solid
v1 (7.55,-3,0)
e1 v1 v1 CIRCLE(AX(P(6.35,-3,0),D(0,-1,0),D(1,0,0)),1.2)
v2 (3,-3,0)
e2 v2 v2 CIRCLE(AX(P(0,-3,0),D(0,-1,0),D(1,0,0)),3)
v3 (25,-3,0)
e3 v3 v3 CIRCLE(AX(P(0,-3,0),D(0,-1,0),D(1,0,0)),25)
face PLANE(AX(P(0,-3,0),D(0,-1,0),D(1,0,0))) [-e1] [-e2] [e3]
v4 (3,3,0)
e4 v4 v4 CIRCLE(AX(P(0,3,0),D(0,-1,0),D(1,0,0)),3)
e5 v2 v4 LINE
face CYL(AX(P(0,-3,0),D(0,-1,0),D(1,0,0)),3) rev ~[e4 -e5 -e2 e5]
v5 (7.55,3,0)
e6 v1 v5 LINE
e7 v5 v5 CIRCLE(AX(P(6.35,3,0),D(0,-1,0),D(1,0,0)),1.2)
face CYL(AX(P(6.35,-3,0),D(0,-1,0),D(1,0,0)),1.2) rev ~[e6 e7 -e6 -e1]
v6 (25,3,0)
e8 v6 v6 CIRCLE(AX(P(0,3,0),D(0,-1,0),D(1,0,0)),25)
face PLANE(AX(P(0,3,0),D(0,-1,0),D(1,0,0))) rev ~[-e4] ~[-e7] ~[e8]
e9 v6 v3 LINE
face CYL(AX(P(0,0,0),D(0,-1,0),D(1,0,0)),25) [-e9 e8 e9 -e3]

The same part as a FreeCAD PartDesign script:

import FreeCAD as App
import Part
import Sketcher
from FreeCAD import Vector

doc = App.newDocument("Part")
params = doc.addObject("Spreadsheet::Sheet", "Params")
for row, (alias, value) in enumerate([
    ("sketch1_diameter", "50 mm"),
    ("pad1_length", "3 mm"),
    ("pad1_length2", "3 mm"),
    ("sketch2_diameter", "6 mm"),
    ("sketch2_diameter2", "2.4 mm"),
], start=1):
    params.set(f"A{row}", alias)
    params.set(f"B{row}", "=" + value)
    params.setAlias(f"B{row}", alias)

body = doc.addObject("PartDesign::Body", "Body")

sketch1 = body.newObject("Sketcher::SketchObject", "Sketch")
sketch1.AttachmentSupport = (doc.getObject("XZ_Plane"), [""])
sketch1.MapMode = "FlatFace"
sketch1.addGeometry(Part.Circle(Vector(0, 0, 0), Vector(0, 0, 1), 25), False)
sketch1.addConstraint([
    Sketcher.Constraint("Coincident", 0, 3, -1, 1),
    Sketcher.Constraint("Diameter", 0, 50.0),
])
sketch1.setExpression("Constraints[1]", "Params.sketch1_diameter")
pad1 = body.newObject("PartDesign::Pad", "Pad")
pad1.Profile = sketch1
pad1.Type = "TwoLengths"
pad1.setExpression("Length", "Params.pad1_length")
pad1.setExpression("Length2", "Params.pad1_length2")

sketch2 = body.newObject("Sketcher::SketchObject", "Sketch001")
sketch2.AttachmentSupport = (doc.getObject("XZ_Plane"), [""])
sketch2.MapMode = "FlatFace"
sketch2.AttachmentOffset = App.Placement(Vector(0, 0, 3), App.Rotation())
sketch2.addGeometry([
    Part.Circle(Vector(0, 0, 0), Vector(0, 0, 1), 3),
    Part.Circle(Vector(6.35, 0, 0), Vector(0, 0, 1), 1.2),
], False)
sketch2.addConstraint([
    Sketcher.Constraint("Coincident", 0, 3, -1, 1),
    Sketcher.Constraint("PointOnObject", 1, 3, -1),
    Sketcher.Constraint("Diameter", 0, 6.0),
    Sketcher.Constraint("Diameter", 1, 2.4),
    Sketcher.Constraint("DistanceX", -1, 1, 1, 3, 6.35),
])
sketch2.setExpression("Constraints[2]", "Params.sketch2_diameter")
sketch2.setExpression("Constraints[3]", "Params.sketch2_diameter2")
pocket1 = body.newObject("PartDesign::Pocket", "Pocket")
pocket1.Profile = sketch2
pocket1.Type = "ThroughAll"

doc.recompute()
